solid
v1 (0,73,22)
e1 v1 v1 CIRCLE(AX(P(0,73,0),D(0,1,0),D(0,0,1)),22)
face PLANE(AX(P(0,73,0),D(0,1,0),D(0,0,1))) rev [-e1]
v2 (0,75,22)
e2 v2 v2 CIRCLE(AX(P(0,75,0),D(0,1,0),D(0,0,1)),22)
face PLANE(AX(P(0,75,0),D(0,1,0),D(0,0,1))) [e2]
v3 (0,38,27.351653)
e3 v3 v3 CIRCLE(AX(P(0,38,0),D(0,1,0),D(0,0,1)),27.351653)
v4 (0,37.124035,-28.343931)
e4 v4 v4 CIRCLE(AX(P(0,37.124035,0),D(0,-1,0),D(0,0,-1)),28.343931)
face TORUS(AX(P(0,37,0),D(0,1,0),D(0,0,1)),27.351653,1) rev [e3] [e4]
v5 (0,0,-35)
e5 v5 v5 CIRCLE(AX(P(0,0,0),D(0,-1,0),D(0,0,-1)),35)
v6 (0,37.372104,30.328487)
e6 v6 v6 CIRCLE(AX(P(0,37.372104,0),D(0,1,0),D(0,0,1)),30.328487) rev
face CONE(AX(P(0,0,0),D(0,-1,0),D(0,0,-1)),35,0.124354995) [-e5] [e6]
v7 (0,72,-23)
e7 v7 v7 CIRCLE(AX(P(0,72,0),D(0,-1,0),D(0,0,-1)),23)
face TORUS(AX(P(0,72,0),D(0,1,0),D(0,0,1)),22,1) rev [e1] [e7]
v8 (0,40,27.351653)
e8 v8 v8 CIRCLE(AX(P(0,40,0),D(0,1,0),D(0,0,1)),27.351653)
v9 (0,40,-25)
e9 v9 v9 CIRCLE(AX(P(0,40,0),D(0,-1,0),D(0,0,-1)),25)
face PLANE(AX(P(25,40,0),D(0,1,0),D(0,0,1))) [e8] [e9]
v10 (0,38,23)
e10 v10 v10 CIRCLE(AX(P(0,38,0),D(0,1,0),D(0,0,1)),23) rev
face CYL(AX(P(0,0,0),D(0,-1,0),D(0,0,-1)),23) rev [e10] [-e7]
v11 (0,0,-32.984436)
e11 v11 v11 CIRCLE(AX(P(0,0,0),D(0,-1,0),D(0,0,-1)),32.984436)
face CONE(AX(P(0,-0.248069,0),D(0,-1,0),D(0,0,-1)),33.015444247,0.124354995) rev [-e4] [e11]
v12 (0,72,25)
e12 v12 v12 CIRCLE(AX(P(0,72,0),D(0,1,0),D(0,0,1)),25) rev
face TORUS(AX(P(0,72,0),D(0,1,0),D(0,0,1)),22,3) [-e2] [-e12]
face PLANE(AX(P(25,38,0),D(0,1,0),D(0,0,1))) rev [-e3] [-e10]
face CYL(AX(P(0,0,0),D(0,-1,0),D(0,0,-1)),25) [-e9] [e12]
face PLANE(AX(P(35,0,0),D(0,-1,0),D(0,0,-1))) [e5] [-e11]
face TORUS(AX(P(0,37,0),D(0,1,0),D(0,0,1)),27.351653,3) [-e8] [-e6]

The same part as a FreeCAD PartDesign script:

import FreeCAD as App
import Part
import Sketcher
from FreeCAD import Vector
Q = App.Units.Quantity


def edges_at(feature, points):
    """Names of the edges that pass closest to the given points."""
    edges = feature.Shape.Edges
    near = lambda p: min(range(len(edges)), key=lambda i: edges[i].distToShape(Part.Vertex(*p))[0])
    return sorted({f"Edge{near(p) + 1}" for p in points})


def faces_at(feature, points):
    """Names of the faces that lie closest to the given points."""
    faces = feature.Shape.Faces
    near = lambda p: min(range(len(faces)), key=lambda i: faces[i].distToShape(Part.Vertex(*p))[0])
    return sorted({f"Face{near(p) + 1}" for p in points})


def add_polygon(sketch, points):
    """Adds a closed chain of lines whose ends are joined by coincident constraints."""
    first, n = sketch.GeometryCount, len(points)
    for a, b in zip(points, points[1:] + points[:1]):
        sketch.addGeometry(Part.LineSegment(App.Vector(*a, 0), App.Vector(*b, 0)), False)
    for i in range(n):
        sketch.addConstraint(Sketcher.Constraint("Coincident", first + i, 2, first + (i + 1) % n, 1))

doc = App.newDocument("Part")
body = doc.addObject("PartDesign::Body", "Body")

# Sketch on XY plane
sketch1 = body.newObject("Sketcher::SketchObject", "Sketch")
sketch1.AttachmentSupport = (doc.getObject("XY_Plane"), [""])
sketch1.MapMode = "FlatFace"
add_polygon(sketch1, [(25, 75), (0, 75), (0, 0), (35, 0), (30, 40), (25, 40)])  # lines 0-5
sketch1.addConstraint(Sketcher.Constraint("Horizontal", 0))
sketch1.addConstraint(Sketcher.Constraint("Vertical", 1))
sketch1.addConstraint(Sketcher.Constraint("Horizontal", 2))
sketch1.addConstraint(Sketcher.Constraint("Horizontal", 4))
sketch1.addConstraint(Sketcher.Constraint("Vertical", 5))
sketch1.addConstraint(Sketcher.Constraint("Coincident", 1, 2, -1, 1))
sketch1.addConstraint(Sketcher.Constraint("Equal", 2, 5))
sketch1.addConstraint(Sketcher.Constraint("DistanceX", 0, 2, 0, 1, Q("25 mm")))
sketch1.addConstraint(Sketcher.Constraint("DistanceX", 2, 1, 2, 2, Q("35 mm")))
sketch1.addConstraint(Sketcher.Constraint("DistanceX", 4, 2, 4, 1, Q("5 mm")))
sketch1.addConstraint(Sketcher.Constraint("DistanceY", 1, 2, 1, 1, Q("75 mm")))
revolution = body.newObject("PartDesign::Revolution", "Revolution")
revolution.Profile = sketch1
revolution.ReferenceAxis = (sketch1, ["V_Axis"])
revolution.Angle = 360
doc.recompute()

fillet = body.newObject("PartDesign::Fillet", "Fillet")
fillet.Base = (revolution, edges_at(revolution, [(0, 40, 30), (0, 75, 25)]))
fillet.Radius = 3
doc.recompute()

thickness = body.newObject("PartDesign::Thickness", "Thickness")
thickness.Base = (fillet, faces_at(fillet, [(0, 0, 0)]))
thickness.Value = 2
thickness.Reversed = True
thickness.Join = "Intersection"

doc.recompute()
